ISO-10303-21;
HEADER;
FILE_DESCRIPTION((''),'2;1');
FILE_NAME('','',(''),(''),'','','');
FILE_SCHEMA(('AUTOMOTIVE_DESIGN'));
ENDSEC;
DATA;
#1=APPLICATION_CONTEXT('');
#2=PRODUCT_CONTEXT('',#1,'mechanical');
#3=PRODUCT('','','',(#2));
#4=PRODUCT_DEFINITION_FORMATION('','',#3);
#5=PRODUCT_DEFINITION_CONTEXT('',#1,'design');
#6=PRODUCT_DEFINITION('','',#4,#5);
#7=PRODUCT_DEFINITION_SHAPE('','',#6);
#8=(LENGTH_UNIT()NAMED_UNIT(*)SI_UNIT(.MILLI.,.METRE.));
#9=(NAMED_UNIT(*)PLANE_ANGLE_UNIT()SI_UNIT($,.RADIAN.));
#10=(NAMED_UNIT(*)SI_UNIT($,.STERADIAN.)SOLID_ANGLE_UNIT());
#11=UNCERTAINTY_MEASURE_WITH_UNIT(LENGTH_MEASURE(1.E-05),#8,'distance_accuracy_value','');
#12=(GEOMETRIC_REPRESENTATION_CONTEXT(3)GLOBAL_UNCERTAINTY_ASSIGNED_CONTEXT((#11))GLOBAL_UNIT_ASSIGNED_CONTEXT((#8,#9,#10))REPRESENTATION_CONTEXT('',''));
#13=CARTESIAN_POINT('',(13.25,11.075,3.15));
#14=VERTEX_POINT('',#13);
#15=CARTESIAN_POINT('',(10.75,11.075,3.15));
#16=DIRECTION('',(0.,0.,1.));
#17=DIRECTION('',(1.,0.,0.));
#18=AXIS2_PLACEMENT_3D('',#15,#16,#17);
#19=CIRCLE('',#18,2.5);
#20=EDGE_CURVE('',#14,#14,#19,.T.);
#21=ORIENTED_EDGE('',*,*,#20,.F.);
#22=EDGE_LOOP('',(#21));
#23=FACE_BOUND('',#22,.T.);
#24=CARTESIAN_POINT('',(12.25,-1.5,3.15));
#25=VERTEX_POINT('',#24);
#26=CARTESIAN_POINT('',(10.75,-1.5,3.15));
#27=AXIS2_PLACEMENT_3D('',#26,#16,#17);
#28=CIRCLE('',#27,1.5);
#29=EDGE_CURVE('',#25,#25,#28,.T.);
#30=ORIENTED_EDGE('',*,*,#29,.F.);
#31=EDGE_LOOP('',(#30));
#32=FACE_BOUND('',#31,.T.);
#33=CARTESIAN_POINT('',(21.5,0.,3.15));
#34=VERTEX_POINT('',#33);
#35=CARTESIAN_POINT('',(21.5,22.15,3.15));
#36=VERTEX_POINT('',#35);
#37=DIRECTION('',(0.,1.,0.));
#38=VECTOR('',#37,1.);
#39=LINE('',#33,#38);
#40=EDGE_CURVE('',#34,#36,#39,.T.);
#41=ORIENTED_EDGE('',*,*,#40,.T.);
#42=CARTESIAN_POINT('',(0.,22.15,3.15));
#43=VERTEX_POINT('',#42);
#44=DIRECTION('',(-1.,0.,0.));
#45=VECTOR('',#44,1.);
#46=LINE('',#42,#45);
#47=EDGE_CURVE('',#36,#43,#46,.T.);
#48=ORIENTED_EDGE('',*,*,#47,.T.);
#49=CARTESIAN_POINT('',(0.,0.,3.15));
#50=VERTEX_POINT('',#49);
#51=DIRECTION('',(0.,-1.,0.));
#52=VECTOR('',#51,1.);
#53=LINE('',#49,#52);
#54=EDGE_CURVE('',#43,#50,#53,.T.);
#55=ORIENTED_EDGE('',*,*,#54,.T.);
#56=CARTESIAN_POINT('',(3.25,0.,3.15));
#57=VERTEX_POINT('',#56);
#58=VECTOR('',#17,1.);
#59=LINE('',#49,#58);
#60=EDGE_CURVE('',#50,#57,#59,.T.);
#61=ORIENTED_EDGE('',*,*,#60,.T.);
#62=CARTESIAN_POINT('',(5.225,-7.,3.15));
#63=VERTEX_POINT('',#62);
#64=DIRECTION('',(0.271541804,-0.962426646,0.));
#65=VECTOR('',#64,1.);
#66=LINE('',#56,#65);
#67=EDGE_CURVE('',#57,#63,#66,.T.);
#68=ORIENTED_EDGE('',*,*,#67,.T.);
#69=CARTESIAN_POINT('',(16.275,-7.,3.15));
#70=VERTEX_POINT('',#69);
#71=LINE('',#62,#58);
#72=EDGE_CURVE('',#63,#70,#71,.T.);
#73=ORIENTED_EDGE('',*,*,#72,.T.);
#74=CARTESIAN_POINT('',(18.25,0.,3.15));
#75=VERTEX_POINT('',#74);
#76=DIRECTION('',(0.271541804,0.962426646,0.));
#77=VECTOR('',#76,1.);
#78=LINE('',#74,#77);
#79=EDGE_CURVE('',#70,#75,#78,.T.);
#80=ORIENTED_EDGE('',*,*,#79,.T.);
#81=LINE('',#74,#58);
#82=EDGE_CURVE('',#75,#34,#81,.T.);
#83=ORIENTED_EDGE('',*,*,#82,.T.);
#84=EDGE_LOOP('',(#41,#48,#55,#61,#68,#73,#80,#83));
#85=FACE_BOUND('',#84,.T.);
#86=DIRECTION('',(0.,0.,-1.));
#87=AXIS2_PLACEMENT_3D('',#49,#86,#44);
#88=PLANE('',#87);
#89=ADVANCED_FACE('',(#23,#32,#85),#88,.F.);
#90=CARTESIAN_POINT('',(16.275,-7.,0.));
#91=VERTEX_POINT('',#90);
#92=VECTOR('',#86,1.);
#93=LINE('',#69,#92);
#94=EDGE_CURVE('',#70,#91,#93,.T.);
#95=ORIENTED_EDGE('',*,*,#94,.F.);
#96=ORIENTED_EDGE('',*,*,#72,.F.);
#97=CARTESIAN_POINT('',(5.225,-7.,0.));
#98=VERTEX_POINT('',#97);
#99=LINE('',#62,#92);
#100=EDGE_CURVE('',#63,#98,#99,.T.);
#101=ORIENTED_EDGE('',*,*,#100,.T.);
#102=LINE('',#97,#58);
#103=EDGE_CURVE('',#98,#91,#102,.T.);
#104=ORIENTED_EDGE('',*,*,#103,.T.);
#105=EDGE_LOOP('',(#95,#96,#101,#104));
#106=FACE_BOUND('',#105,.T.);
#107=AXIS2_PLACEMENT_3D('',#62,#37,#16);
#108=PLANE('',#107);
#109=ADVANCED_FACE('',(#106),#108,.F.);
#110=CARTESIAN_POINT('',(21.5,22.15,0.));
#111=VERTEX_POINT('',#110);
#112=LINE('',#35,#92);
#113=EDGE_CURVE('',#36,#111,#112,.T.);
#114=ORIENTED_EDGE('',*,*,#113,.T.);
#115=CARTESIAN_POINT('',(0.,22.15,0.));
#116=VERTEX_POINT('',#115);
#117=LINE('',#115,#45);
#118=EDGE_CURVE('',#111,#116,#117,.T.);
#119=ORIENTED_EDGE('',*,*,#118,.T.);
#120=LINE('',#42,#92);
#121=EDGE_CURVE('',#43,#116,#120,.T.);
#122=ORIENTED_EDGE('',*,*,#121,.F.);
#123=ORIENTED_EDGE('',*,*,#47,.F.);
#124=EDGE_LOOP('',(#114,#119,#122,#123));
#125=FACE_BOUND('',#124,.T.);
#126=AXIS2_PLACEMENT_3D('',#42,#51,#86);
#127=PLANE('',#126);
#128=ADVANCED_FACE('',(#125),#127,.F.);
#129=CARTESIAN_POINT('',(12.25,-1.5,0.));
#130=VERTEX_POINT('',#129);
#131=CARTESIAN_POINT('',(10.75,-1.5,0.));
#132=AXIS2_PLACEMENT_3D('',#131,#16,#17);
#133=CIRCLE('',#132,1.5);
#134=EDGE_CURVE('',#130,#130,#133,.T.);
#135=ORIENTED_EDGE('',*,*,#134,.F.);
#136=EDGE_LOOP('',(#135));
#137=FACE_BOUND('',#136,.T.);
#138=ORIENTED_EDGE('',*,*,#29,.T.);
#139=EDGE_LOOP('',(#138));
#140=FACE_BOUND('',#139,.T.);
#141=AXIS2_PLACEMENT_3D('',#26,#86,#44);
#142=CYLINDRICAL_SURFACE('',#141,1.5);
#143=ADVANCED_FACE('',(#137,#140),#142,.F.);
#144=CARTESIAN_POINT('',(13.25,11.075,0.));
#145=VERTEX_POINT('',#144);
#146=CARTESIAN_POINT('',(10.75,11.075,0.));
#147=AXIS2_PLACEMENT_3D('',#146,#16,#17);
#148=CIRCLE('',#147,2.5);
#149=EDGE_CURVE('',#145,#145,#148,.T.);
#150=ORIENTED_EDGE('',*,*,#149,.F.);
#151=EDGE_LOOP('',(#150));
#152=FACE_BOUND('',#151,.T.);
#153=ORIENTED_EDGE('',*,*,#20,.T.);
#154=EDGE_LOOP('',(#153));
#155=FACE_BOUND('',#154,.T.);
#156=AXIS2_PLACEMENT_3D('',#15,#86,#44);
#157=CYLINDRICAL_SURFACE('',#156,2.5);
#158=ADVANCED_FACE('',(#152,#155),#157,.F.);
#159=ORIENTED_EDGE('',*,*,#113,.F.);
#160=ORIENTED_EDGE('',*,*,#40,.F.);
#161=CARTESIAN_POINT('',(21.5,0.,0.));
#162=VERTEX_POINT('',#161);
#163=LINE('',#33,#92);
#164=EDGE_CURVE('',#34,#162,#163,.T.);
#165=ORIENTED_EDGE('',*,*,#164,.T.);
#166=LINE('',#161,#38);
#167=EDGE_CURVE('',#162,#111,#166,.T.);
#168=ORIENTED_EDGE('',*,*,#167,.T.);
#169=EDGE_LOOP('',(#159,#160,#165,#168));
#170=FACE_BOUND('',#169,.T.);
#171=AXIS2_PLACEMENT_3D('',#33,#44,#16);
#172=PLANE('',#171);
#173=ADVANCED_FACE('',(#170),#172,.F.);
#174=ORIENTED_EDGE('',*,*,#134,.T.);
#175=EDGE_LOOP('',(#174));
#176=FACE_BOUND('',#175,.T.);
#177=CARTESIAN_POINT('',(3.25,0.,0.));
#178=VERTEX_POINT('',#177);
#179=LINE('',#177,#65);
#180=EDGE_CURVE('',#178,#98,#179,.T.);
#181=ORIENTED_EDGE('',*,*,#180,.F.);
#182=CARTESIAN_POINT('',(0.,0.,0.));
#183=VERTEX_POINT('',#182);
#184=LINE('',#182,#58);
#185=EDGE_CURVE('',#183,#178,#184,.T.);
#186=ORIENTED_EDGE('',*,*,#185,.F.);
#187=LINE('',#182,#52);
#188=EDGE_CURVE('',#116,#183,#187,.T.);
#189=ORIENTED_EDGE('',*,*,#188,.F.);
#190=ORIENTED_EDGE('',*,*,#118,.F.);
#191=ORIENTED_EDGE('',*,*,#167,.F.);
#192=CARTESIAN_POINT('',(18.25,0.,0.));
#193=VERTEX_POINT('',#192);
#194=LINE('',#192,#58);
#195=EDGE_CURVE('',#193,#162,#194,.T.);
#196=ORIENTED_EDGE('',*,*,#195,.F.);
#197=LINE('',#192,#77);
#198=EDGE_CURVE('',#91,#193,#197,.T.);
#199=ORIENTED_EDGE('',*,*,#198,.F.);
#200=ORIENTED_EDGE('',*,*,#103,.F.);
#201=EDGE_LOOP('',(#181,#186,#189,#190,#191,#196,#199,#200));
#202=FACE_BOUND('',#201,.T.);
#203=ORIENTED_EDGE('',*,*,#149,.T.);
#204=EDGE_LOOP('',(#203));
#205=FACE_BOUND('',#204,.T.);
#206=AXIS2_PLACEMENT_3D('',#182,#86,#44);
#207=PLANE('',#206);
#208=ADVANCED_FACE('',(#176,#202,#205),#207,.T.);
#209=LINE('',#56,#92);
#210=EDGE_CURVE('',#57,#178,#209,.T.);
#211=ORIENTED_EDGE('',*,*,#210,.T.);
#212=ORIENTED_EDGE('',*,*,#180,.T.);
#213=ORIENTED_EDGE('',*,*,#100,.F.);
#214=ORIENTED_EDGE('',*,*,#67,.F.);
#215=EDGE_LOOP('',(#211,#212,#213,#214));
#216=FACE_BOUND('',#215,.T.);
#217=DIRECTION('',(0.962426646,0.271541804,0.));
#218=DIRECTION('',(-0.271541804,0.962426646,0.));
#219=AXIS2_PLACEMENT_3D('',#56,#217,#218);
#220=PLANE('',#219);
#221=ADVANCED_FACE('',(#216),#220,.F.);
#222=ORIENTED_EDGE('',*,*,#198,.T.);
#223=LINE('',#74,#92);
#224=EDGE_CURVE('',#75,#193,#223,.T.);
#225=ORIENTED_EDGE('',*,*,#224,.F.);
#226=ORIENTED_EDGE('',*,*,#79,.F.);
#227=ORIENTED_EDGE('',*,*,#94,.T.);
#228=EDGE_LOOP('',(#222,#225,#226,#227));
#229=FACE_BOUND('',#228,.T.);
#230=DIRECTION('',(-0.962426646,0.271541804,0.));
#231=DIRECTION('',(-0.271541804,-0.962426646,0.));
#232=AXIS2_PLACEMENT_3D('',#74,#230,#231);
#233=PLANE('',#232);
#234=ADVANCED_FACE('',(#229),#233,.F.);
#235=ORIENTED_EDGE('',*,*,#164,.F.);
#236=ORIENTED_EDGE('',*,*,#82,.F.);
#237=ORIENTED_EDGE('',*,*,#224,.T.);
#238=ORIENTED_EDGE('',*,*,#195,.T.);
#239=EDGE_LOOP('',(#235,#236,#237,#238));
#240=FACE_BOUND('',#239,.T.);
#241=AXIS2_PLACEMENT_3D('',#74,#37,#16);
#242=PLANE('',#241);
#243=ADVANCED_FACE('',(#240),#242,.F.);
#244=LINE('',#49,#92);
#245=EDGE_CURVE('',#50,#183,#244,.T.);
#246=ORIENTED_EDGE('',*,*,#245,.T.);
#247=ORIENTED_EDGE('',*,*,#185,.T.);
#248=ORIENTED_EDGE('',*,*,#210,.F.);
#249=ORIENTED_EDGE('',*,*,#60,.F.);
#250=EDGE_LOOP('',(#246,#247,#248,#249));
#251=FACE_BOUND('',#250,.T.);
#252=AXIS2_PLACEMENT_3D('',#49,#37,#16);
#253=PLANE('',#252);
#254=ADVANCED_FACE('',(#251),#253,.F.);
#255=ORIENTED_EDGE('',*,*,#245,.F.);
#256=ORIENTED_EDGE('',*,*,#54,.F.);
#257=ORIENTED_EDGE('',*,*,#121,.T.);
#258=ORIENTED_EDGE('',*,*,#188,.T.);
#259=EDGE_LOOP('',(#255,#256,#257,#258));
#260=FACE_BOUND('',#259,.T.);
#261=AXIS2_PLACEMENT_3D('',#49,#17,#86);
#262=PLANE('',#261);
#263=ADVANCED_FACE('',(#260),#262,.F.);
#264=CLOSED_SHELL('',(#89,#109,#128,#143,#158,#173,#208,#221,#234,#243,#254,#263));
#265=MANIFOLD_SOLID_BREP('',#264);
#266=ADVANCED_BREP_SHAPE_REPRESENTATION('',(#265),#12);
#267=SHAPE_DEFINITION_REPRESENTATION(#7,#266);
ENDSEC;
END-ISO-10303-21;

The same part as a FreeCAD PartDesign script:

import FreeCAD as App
import Part
import Sketcher


def add_polygon(sketch, points):
    """Adds a closed chain of lines whose ends are joined by coincident constraints."""
    first, n = sketch.GeometryCount, len(points)
    for a, b in zip(points, points[1:] + points[:1]):
        sketch.addGeometry(Part.LineSegment(App.Vector(*a, 0), App.Vector(*b, 0)), False)
    for i in range(n):
        sketch.addConstraint(Sketcher.Constraint("Coincident", first + i, 2, first + (i + 1) % n, 1))

doc = App.newDocument("Part")
body = doc.addObject("PartDesign::Body", "Body")

# Sketch on XY plane
sketch1 = body.newObject("Sketcher::SketchObject", "Sketch")
sketch1.AttachmentSupport = (doc.getObject("XY_Plane"), [""])
sketch1.MapMode = "FlatFace"
add_polygon(sketch1, [(3.2, 0), (5.2, -7), (16.3, -7), (18.2, 0), (21.5, 0), (21.5, 22.1), (0, 22.1), (0, 0)])  # lines 0-7
sketch1.addGeometry(Part.Circle(App.Vector(10.8, -1.5, 0), App.Vector(0, 0, 1), 1.5), False)  # 8
sketch1.addGeometry(Part.Circle(App.Vector(10.8, 11.1, 0), App.Vector(0, 0, 1), 2.5), False)  # 9
sketch1.addConstraint(Sketcher.Constraint("Horizontal", 1))
sketch1.addConstraint(Sketcher.Constraint("Horizontal", 3))
sketch1.addConstraint(Sketcher.Constraint("Vertical", 4))
sketch1.addConstraint(Sketcher.Constraint("Horizontal", 5))
sketch1.addConstraint(Sketcher.Constraint("Vertical", 6))
sketch1.addConstraint(Sketcher.Constraint("Horizontal", 7))
sketch1.addConstraint(Sketcher.Constraint("Coincident", 6, 2, -1, 1))
sketch1.addConstraint(Sketcher.Constraint("PointOnObject", 2, 2, -1))
sketch1.addConstraint(Sketcher.Constraint("Vertical", 8, 3, 9, 3))
sketch1.addConstraint(Sketcher.Constraint("Equal", 3, 7))
sketch1.addConstraint(Sketcher.Constraint("Equal", 0, 2))
sketch1.addConstraint(Sketcher.Constraint("Diameter", 8, 3.0))
sketch1.addConstraint(Sketcher.Constraint("Diameter", 9, 5.0))
sketch1.addConstraint(Sketcher.Constraint("DistanceX", 5, 2, 5, 1, 21.5))
sketch1.addConstraint(Sketcher.Constraint("DistanceY", 0, 2, -1, 1, 7.0))
sketch1.addConstraint(Sketcher.Constraint("DistanceX", 1, 1, 1, 2, 11.05))
sketch1.addConstraint(Sketcher.Constraint("DistanceX", 3, 1, 3, 2, 3.25))
sketch1.addConstraint(Sketcher.Constraint("DistanceY", 4, 1, 4, 2, 22.15))
sketch1.addConstraint(Sketcher.Constraint("DistanceY", 8, 3, -1, 1, 1.5))
sketch1.addConstraint(Sketcher.Constraint("DistanceX", 8, 3, 2, 2, 7.5))
sketch1.addConstraint(Sketcher.Constraint("DistanceY", -1, 1, 9, 3, 11.075))
pad1 = body.newObject("PartDesign::Pad", "Pad")
pad1.Profile = sketch1
pad1.Length = 3.15

doc.recompute()
